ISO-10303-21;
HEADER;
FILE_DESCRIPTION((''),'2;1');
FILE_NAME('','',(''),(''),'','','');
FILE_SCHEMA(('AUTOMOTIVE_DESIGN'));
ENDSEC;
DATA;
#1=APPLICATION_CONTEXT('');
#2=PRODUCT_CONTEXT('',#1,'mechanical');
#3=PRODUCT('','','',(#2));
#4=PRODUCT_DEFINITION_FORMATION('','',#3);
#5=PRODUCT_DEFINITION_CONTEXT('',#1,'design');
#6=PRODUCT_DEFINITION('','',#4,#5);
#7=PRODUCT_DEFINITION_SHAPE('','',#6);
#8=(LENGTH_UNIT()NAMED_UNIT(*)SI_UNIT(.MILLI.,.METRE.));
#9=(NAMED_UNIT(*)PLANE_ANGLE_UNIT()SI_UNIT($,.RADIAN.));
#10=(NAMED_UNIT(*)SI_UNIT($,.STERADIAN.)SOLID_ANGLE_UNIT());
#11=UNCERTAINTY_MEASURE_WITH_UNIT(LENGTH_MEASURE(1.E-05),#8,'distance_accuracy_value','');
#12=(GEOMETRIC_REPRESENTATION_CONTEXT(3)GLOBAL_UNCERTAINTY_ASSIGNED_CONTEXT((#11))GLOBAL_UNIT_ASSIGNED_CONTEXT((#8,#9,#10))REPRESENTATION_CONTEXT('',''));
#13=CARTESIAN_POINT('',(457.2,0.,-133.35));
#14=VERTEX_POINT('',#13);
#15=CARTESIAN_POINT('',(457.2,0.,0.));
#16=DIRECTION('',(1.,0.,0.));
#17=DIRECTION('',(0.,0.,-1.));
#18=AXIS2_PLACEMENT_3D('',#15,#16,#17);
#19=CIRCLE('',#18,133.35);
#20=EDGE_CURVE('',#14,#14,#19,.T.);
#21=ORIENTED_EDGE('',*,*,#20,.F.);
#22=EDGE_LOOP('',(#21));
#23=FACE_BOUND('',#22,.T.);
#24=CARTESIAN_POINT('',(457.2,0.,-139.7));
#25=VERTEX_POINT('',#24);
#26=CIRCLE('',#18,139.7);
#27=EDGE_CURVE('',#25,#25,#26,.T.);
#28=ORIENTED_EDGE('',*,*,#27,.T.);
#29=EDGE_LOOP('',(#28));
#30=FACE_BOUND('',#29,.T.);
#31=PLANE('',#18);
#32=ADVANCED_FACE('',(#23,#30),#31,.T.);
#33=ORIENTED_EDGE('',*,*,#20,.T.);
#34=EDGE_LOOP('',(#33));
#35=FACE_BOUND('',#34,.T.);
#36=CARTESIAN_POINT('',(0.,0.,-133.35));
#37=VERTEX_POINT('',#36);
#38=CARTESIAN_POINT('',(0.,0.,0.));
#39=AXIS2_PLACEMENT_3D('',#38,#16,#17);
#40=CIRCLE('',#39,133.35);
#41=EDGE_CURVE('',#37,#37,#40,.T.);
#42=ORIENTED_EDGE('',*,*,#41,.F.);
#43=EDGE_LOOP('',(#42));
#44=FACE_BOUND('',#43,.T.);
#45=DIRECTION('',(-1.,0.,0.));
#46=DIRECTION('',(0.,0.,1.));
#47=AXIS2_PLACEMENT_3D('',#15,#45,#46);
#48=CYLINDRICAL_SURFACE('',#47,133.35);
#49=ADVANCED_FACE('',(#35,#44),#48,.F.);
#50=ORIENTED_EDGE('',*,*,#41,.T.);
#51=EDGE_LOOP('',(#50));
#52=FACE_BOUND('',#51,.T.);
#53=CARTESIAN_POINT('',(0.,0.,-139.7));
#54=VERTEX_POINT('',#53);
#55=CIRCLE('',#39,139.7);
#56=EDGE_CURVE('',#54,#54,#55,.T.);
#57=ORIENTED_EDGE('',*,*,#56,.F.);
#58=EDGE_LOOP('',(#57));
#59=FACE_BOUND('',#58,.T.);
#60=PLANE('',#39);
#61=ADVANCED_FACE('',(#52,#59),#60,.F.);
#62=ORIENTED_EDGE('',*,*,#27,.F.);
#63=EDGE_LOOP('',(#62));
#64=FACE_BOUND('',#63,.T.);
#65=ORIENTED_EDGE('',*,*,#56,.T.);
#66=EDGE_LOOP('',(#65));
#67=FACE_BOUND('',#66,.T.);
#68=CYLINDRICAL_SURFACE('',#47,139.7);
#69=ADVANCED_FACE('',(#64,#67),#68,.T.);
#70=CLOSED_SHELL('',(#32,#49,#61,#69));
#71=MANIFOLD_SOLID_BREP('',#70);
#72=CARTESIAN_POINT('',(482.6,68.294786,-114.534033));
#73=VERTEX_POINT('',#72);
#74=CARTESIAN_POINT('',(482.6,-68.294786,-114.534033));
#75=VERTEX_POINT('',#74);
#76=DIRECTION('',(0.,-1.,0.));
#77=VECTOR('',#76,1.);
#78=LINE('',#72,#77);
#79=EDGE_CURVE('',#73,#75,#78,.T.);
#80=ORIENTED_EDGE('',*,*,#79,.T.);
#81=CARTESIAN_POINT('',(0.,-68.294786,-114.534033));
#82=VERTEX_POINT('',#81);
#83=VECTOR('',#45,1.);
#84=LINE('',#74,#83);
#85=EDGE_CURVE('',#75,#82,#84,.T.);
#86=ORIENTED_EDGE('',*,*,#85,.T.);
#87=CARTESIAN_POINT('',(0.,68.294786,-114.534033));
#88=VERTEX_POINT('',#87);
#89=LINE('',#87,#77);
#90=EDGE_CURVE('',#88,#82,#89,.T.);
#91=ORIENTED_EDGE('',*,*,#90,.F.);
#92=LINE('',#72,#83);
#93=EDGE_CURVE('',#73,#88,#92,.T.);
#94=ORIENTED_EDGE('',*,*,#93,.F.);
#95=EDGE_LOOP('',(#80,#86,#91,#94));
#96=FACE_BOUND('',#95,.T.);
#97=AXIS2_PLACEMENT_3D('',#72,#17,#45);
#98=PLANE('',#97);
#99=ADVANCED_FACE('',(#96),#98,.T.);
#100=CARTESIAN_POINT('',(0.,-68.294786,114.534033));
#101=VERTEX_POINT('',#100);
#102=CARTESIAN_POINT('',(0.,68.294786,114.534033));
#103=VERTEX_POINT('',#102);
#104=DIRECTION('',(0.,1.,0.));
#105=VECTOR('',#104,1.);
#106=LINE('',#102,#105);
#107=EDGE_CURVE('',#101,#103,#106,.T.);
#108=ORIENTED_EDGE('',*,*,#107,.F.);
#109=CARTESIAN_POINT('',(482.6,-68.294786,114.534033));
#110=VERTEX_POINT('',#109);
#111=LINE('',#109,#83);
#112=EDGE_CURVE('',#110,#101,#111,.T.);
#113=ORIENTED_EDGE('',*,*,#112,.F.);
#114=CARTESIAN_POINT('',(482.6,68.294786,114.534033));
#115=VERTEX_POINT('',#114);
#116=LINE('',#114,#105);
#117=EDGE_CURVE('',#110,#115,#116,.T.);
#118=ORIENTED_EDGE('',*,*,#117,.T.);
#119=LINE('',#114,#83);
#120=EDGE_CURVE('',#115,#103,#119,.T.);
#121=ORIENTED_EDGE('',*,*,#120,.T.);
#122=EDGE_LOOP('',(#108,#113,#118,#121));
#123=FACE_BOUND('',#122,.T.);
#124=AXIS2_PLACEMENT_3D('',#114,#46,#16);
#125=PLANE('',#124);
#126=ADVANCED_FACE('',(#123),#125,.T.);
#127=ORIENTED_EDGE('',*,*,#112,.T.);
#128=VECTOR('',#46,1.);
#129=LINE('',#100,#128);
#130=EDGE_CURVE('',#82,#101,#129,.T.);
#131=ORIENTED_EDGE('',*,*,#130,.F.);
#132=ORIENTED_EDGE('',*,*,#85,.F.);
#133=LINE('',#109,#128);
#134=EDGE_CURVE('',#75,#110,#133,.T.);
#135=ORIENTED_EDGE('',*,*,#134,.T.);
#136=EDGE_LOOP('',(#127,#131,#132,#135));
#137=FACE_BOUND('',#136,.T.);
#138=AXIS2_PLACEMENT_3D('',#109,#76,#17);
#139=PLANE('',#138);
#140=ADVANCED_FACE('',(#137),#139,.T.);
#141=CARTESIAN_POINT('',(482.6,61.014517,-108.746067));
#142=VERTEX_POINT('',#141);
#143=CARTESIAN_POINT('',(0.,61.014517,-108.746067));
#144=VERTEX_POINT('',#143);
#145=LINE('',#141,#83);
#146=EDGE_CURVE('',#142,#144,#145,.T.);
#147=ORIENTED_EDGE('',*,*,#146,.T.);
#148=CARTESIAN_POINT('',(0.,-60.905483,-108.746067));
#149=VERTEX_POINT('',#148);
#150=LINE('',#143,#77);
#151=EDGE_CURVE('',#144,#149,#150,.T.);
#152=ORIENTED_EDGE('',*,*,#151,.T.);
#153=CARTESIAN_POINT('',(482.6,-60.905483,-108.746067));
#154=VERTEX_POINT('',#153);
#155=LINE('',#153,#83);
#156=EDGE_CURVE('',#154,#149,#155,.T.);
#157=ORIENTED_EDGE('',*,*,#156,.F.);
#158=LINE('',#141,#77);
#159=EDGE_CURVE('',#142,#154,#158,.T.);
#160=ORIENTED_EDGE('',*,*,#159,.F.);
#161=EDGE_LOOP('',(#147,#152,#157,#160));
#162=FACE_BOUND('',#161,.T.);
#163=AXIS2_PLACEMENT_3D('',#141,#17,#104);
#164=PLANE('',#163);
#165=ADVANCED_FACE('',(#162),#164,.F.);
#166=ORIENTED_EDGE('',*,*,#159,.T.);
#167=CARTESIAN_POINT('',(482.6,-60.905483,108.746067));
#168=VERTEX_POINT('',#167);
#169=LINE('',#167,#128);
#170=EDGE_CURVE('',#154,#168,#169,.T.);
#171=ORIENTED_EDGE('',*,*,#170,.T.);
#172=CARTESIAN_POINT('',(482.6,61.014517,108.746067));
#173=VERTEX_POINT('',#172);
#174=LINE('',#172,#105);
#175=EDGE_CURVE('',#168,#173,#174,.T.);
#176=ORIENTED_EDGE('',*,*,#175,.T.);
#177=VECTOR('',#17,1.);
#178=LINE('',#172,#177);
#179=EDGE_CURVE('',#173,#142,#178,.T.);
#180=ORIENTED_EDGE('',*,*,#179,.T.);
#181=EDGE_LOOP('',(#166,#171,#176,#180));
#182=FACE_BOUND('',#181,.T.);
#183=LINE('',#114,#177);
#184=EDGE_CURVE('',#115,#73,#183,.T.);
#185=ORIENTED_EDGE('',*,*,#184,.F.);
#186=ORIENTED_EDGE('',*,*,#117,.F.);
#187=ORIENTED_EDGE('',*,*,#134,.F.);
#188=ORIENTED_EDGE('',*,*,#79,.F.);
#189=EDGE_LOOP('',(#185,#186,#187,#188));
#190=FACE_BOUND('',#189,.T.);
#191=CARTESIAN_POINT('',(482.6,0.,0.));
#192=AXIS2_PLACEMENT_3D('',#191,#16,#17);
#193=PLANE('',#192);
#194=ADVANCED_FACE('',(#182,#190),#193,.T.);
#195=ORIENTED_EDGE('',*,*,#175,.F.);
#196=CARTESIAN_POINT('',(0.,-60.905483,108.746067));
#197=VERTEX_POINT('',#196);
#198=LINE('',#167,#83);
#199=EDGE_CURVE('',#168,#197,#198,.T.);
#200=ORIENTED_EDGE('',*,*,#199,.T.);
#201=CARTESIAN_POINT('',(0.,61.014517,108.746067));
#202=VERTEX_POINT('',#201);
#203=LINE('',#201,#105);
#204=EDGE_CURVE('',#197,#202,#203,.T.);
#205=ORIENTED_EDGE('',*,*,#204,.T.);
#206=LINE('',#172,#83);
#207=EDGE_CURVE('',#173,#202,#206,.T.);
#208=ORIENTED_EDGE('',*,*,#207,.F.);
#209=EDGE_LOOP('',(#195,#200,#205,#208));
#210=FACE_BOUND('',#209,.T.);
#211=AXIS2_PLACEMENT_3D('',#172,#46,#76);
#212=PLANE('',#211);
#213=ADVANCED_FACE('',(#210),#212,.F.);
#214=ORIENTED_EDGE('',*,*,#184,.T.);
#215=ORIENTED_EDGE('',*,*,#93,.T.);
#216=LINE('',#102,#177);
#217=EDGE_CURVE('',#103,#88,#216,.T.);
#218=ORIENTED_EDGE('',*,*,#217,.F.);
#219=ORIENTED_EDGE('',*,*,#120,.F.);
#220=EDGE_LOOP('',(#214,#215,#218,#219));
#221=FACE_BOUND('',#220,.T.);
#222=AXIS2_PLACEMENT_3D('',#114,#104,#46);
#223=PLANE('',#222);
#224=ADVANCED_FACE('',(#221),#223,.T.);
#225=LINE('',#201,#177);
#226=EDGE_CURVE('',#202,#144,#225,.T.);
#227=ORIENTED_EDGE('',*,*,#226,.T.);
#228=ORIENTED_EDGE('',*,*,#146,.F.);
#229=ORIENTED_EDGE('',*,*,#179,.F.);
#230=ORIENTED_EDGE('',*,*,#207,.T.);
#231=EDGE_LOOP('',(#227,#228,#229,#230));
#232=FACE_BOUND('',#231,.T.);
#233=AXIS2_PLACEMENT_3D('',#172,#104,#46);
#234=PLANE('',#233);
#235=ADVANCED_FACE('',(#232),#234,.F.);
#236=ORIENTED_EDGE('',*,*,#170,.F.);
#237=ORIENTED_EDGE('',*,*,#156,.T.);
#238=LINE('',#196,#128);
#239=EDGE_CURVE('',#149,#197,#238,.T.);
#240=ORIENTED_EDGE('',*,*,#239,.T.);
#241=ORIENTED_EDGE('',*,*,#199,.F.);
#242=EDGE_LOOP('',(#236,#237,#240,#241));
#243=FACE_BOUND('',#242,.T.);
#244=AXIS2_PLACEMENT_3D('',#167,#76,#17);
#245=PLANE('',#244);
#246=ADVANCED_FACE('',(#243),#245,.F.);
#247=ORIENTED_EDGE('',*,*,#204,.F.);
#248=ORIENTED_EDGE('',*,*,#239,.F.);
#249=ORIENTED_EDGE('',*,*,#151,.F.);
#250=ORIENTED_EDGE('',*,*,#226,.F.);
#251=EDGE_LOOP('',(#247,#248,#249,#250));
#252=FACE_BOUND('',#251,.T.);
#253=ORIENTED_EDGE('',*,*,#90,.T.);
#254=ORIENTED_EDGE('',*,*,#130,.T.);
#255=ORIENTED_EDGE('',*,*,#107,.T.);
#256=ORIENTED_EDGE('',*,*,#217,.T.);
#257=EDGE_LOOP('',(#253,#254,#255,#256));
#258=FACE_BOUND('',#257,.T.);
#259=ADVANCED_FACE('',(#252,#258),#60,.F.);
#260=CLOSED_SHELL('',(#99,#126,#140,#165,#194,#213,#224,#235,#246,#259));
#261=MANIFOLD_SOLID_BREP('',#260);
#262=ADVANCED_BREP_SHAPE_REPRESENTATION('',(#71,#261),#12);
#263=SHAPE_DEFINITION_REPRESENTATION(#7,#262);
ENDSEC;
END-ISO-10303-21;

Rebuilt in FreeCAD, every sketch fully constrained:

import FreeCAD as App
import Part
import Sketcher
from FreeCAD import Vector
Q = App.Units.Quantity


def add_polygon(sketch, points):
    """Adds a closed chain of lines whose ends are joined by coincident constraints."""
    first, n = sketch.GeometryCount, len(points)
    for a, b in zip(points, points[1:] + points[:1]):
        sketch.addGeometry(Part.LineSegment(App.Vector(*a, 0), App.Vector(*b, 0)), False)
    for i in range(n):
        sketch.addConstraint(Sketcher.Constraint("Coincident", first + i, 2, first + (i + 1) % n, 1))

doc = App.newDocument("Part")
body = doc.addObject("PartDesign::Body", "Body")

sketch1 = body.newObject("Sketcher::SketchObject", "Sketch")
sketch1.AttachmentSupport = (doc.getObject("YZ_Plane"), [""])
sketch1.MapMode = "FlatFace"
sketch1.addGeometry([
    Part.Circle(Vector(0, 0, 0), Vector(0, 0, 1), 139.7),
    Part.Circle(Vector(0, 0, 0), Vector(0, 0, 1), 133.35),
], False)
sketch1.addConstraint([
    Sketcher.Constraint("Coincident", 0, 3, -1, 1),
    Sketcher.Constraint("Coincident", 1, 3, -1, 1),
    Sketcher.Constraint("Diameter", 0, Q("11 in")),
    Sketcher.Constraint("Diameter", 1, Q("10.5 in")),
])
pad1 = body.newObject("PartDesign::Pad", "Pad")
pad1.Profile = sketch1
pad1.Length = Q("18 in")
body2 = doc.addObject("PartDesign::Body", "Body001")

sketch2 = body2.newObject("Sketcher::SketchObject", "Sketch001")
sketch2.AttachmentSupport = (doc.getObject("YZ_Plane001"), [""])
sketch2.MapMode = "FlatFace"
add_polygon(sketch2, [(68.294786, -114.534033), (-68.294786, -114.534033), (-68.294786, 114.534033), (68.294786, 114.534033)])
add_polygon(sketch2, [(-60.905483, 108.746067), (-60.905483, -108.746067), (61.014517, -108.746067), (61.014517, 108.746067)])
sketch2.addConstraint([
    Sketcher.Constraint("Horizontal", 0),
    Sketcher.Constraint("Vertical", 1),
    Sketcher.Constraint("Horizontal", 2),
    Sketcher.Constraint("Vertical", 3),
    Sketcher.Constraint("Vertical", 4),
    Sketcher.Constraint("Horizontal", 5),
    Sketcher.Constraint("Vertical", 6),
    Sketcher.Constraint("Horizontal", 7),
    Sketcher.Constraint("Symmetric", 0, 2, 2, 2, -1, 1),
    Sketcher.Constraint("DistanceX", 5, 1, 5, 2, Q("4.8 in")),
    Sketcher.Constraint("DistanceY", 4, 2, 1, 2, Q("223.2801 mm")),
    Sketcher.Constraint("DistanceY", 3, 2, 6, 2, Q("223.2801 mm")),
    Sketcher.Constraint("DistanceX", 0, 2, 0, 1, Q("136.589573 mm")),
    Sketcher.Constraint("DistanceY", 1, 1, 1, 2, Q("229.068065 mm")),
    Sketcher.Constraint("DistanceX", 4, 2, 3, 2, Q("129.200269 mm")),
])
pad2 = body2.newObject("PartDesign::Pad", "Pad001")
pad2.Profile = sketch2
pad2.Length = Q("19 in")

doc.recompute()
